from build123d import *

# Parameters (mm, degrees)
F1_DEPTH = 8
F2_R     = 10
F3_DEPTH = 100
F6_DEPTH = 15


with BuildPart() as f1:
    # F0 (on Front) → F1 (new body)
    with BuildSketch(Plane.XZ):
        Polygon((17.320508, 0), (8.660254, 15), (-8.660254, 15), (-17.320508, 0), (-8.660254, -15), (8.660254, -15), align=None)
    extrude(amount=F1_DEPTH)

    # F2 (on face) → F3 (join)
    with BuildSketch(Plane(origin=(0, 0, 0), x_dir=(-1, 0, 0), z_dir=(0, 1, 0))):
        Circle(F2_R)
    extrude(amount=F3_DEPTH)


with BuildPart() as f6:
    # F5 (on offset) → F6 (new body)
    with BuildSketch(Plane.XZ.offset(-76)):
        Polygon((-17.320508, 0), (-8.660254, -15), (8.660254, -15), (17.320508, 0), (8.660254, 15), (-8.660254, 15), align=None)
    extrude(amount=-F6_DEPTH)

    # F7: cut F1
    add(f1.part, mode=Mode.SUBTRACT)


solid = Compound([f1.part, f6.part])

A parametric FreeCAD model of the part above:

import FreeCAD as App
import Part
import Sketcher

V = App.Vector
Q = App.Units.Quantity


def add_polygon(sketch, points):
    """Adds a closed chain of lines whose ends are joined by coincident constraints."""
    first, n = sketch.GeometryCount, len(points)
    for a, b in zip(points, points[1:] + points[:1]):
        sketch.addGeometry(Part.LineSegment(App.Vector(*a, 0), App.Vector(*b, 0)), False)
    for i in range(n):
        sketch.addConstraint(Sketcher.Constraint("Coincident", first + i, 2, first + (i + 1) % n, 1))

doc = App.newDocument("Part")
body = doc.addObject("PartDesign::Body", "Body")

sketch1 = doc.addObject("Sketcher::SketchObject", "Sketch")
body.addObject(sketch1)
sketch1.AttachmentSupport = (doc.XZ_Plane, [""])
sketch1.MapMode = "FlatFace"
add_polygon(sketch1, [(17.320508, 0), (8.660254, 15), (-8.660254, 15), (-17.320508, 0), (-8.660254, -15), (8.660254, -15)])
sketch1.addConstraint(Sketcher.Constraint("Horizontal", 1))
sketch1.addConstraint(Sketcher.Constraint("Horizontal", 4))
sketch1.addConstraint(Sketcher.Constraint("Symmetric", 0, 2, 3, 2, -1, 1))
sketch1.addConstraint(Sketcher.Constraint("Symmetric", 2, 2, 5, 2, -1, 1))
sketch1.addConstraint(Sketcher.Constraint("PointOnObject", 2, 2, -1))
sketch1.addConstraint(Sketcher.Constraint("Parallel", 2, 5))
sketch1.addConstraint(Sketcher.Constraint("Vertical", 1, 2, 3, 2))
sketch1.addConstraint(Sketcher.Constraint("Angle", 0, Q("120 deg")))
sketch1.addConstraint(Sketcher.Constraint("DistanceY", -1, 1, 0, 2, Q("15 mm")))
sketch1.addConstraint(Sketcher.Constraint("DistanceX", 1, 2, 1, 1, Q("17.320508 mm")))
pad1 = doc.addObject("PartDesign::Pad", "Pad")
body.addObject(pad1)
pad1.Profile = sketch1
pad1.Length = 8

sketch2 = doc.addObject("Sketcher::SketchObject", "Sketch001")
body.addObject(sketch2)
sketch2.AttachmentSupport = (doc.XZ_Plane, [""])
sketch2.MapMode = "FlatFace"
sketch2.addGeometry(Part.Circle(V(0, 0, 0), V(0, 0, 1), 10), False)
sketch2.addConstraint(Sketcher.Constraint("Coincident", 0, 3, -1, 1))
sketch2.addConstraint(Sketcher.Constraint("Diameter", 0, Q("20 mm")))
pad2 = doc.addObject("PartDesign::Pad", "Pad001")
body.addObject(pad2)
pad2.Profile = sketch2
pad2.Length = 100
pad2.Reversed = True
body2 = doc.addObject("PartDesign::Body", "Body001")

sketch3 = doc.addObject("Sketcher::SketchObject", "Sketch002")
body2.addObject(sketch3)
sketch3.AttachmentSupport = (doc.getObject("XZ_Plane001"), [""])
sketch3.MapMode = "FlatFace"
sketch3.AttachmentOffset = App.Placement(V(0, 0, -76), App.Rotation())
add_polygon(sketch3, [(-17.320508, 0), (-8.660254, -15), (8.660254, -15), (17.320508, 0), (8.660254, 15), (-8.660254, 15)])
sketch3.addConstraint(Sketcher.Constraint("Horizontal", 1))
sketch3.addConstraint(Sketcher.Constraint("Horizontal", 4))
sketch3.addConstraint(Sketcher.Constraint("Symmetric", 0, 2, 3, 2, -1, 1))
sketch3.addConstraint(Sketcher.Constraint("Symmetric", 2, 2, 5, 2, -1, 1))
sketch3.addConstraint(Sketcher.Constraint("PointOnObject", 2, 2, -1))
sketch3.addConstraint(Sketcher.Constraint("Parallel", 2, 5))
sketch3.addConstraint(Sketcher.Constraint("Vertical", 1, 2, 3, 2))
sketch3.addConstraint(Sketcher.Constraint("Angle", 0, Q("-60 deg")))
sketch3.addConstraint(Sketcher.Constraint("DistanceY", 0, 2, -1, 1, Q("15 mm")))
sketch3.addConstraint(Sketcher.Constraint("DistanceX", 1, 1, 1, 2, Q("17.320508 mm")))
pad3 = doc.addObject("PartDesign::Pad", "Pad002")
body2.addObject(pad3)
pad3.Profile = sketch3
pad3.Length = 15
pad3.Reversed = True
doc.recompute()

body3 = doc.addObject("PartDesign::Body", "Body002")
body3.BaseFeature = body
boolean = doc.addObject("PartDesign::Boolean", "Boolean")
body2.addObject(boolean)
boolean.Type = "Cut"
boolean.addObjects([body3])
doc.recompute()

doc.recompute()
